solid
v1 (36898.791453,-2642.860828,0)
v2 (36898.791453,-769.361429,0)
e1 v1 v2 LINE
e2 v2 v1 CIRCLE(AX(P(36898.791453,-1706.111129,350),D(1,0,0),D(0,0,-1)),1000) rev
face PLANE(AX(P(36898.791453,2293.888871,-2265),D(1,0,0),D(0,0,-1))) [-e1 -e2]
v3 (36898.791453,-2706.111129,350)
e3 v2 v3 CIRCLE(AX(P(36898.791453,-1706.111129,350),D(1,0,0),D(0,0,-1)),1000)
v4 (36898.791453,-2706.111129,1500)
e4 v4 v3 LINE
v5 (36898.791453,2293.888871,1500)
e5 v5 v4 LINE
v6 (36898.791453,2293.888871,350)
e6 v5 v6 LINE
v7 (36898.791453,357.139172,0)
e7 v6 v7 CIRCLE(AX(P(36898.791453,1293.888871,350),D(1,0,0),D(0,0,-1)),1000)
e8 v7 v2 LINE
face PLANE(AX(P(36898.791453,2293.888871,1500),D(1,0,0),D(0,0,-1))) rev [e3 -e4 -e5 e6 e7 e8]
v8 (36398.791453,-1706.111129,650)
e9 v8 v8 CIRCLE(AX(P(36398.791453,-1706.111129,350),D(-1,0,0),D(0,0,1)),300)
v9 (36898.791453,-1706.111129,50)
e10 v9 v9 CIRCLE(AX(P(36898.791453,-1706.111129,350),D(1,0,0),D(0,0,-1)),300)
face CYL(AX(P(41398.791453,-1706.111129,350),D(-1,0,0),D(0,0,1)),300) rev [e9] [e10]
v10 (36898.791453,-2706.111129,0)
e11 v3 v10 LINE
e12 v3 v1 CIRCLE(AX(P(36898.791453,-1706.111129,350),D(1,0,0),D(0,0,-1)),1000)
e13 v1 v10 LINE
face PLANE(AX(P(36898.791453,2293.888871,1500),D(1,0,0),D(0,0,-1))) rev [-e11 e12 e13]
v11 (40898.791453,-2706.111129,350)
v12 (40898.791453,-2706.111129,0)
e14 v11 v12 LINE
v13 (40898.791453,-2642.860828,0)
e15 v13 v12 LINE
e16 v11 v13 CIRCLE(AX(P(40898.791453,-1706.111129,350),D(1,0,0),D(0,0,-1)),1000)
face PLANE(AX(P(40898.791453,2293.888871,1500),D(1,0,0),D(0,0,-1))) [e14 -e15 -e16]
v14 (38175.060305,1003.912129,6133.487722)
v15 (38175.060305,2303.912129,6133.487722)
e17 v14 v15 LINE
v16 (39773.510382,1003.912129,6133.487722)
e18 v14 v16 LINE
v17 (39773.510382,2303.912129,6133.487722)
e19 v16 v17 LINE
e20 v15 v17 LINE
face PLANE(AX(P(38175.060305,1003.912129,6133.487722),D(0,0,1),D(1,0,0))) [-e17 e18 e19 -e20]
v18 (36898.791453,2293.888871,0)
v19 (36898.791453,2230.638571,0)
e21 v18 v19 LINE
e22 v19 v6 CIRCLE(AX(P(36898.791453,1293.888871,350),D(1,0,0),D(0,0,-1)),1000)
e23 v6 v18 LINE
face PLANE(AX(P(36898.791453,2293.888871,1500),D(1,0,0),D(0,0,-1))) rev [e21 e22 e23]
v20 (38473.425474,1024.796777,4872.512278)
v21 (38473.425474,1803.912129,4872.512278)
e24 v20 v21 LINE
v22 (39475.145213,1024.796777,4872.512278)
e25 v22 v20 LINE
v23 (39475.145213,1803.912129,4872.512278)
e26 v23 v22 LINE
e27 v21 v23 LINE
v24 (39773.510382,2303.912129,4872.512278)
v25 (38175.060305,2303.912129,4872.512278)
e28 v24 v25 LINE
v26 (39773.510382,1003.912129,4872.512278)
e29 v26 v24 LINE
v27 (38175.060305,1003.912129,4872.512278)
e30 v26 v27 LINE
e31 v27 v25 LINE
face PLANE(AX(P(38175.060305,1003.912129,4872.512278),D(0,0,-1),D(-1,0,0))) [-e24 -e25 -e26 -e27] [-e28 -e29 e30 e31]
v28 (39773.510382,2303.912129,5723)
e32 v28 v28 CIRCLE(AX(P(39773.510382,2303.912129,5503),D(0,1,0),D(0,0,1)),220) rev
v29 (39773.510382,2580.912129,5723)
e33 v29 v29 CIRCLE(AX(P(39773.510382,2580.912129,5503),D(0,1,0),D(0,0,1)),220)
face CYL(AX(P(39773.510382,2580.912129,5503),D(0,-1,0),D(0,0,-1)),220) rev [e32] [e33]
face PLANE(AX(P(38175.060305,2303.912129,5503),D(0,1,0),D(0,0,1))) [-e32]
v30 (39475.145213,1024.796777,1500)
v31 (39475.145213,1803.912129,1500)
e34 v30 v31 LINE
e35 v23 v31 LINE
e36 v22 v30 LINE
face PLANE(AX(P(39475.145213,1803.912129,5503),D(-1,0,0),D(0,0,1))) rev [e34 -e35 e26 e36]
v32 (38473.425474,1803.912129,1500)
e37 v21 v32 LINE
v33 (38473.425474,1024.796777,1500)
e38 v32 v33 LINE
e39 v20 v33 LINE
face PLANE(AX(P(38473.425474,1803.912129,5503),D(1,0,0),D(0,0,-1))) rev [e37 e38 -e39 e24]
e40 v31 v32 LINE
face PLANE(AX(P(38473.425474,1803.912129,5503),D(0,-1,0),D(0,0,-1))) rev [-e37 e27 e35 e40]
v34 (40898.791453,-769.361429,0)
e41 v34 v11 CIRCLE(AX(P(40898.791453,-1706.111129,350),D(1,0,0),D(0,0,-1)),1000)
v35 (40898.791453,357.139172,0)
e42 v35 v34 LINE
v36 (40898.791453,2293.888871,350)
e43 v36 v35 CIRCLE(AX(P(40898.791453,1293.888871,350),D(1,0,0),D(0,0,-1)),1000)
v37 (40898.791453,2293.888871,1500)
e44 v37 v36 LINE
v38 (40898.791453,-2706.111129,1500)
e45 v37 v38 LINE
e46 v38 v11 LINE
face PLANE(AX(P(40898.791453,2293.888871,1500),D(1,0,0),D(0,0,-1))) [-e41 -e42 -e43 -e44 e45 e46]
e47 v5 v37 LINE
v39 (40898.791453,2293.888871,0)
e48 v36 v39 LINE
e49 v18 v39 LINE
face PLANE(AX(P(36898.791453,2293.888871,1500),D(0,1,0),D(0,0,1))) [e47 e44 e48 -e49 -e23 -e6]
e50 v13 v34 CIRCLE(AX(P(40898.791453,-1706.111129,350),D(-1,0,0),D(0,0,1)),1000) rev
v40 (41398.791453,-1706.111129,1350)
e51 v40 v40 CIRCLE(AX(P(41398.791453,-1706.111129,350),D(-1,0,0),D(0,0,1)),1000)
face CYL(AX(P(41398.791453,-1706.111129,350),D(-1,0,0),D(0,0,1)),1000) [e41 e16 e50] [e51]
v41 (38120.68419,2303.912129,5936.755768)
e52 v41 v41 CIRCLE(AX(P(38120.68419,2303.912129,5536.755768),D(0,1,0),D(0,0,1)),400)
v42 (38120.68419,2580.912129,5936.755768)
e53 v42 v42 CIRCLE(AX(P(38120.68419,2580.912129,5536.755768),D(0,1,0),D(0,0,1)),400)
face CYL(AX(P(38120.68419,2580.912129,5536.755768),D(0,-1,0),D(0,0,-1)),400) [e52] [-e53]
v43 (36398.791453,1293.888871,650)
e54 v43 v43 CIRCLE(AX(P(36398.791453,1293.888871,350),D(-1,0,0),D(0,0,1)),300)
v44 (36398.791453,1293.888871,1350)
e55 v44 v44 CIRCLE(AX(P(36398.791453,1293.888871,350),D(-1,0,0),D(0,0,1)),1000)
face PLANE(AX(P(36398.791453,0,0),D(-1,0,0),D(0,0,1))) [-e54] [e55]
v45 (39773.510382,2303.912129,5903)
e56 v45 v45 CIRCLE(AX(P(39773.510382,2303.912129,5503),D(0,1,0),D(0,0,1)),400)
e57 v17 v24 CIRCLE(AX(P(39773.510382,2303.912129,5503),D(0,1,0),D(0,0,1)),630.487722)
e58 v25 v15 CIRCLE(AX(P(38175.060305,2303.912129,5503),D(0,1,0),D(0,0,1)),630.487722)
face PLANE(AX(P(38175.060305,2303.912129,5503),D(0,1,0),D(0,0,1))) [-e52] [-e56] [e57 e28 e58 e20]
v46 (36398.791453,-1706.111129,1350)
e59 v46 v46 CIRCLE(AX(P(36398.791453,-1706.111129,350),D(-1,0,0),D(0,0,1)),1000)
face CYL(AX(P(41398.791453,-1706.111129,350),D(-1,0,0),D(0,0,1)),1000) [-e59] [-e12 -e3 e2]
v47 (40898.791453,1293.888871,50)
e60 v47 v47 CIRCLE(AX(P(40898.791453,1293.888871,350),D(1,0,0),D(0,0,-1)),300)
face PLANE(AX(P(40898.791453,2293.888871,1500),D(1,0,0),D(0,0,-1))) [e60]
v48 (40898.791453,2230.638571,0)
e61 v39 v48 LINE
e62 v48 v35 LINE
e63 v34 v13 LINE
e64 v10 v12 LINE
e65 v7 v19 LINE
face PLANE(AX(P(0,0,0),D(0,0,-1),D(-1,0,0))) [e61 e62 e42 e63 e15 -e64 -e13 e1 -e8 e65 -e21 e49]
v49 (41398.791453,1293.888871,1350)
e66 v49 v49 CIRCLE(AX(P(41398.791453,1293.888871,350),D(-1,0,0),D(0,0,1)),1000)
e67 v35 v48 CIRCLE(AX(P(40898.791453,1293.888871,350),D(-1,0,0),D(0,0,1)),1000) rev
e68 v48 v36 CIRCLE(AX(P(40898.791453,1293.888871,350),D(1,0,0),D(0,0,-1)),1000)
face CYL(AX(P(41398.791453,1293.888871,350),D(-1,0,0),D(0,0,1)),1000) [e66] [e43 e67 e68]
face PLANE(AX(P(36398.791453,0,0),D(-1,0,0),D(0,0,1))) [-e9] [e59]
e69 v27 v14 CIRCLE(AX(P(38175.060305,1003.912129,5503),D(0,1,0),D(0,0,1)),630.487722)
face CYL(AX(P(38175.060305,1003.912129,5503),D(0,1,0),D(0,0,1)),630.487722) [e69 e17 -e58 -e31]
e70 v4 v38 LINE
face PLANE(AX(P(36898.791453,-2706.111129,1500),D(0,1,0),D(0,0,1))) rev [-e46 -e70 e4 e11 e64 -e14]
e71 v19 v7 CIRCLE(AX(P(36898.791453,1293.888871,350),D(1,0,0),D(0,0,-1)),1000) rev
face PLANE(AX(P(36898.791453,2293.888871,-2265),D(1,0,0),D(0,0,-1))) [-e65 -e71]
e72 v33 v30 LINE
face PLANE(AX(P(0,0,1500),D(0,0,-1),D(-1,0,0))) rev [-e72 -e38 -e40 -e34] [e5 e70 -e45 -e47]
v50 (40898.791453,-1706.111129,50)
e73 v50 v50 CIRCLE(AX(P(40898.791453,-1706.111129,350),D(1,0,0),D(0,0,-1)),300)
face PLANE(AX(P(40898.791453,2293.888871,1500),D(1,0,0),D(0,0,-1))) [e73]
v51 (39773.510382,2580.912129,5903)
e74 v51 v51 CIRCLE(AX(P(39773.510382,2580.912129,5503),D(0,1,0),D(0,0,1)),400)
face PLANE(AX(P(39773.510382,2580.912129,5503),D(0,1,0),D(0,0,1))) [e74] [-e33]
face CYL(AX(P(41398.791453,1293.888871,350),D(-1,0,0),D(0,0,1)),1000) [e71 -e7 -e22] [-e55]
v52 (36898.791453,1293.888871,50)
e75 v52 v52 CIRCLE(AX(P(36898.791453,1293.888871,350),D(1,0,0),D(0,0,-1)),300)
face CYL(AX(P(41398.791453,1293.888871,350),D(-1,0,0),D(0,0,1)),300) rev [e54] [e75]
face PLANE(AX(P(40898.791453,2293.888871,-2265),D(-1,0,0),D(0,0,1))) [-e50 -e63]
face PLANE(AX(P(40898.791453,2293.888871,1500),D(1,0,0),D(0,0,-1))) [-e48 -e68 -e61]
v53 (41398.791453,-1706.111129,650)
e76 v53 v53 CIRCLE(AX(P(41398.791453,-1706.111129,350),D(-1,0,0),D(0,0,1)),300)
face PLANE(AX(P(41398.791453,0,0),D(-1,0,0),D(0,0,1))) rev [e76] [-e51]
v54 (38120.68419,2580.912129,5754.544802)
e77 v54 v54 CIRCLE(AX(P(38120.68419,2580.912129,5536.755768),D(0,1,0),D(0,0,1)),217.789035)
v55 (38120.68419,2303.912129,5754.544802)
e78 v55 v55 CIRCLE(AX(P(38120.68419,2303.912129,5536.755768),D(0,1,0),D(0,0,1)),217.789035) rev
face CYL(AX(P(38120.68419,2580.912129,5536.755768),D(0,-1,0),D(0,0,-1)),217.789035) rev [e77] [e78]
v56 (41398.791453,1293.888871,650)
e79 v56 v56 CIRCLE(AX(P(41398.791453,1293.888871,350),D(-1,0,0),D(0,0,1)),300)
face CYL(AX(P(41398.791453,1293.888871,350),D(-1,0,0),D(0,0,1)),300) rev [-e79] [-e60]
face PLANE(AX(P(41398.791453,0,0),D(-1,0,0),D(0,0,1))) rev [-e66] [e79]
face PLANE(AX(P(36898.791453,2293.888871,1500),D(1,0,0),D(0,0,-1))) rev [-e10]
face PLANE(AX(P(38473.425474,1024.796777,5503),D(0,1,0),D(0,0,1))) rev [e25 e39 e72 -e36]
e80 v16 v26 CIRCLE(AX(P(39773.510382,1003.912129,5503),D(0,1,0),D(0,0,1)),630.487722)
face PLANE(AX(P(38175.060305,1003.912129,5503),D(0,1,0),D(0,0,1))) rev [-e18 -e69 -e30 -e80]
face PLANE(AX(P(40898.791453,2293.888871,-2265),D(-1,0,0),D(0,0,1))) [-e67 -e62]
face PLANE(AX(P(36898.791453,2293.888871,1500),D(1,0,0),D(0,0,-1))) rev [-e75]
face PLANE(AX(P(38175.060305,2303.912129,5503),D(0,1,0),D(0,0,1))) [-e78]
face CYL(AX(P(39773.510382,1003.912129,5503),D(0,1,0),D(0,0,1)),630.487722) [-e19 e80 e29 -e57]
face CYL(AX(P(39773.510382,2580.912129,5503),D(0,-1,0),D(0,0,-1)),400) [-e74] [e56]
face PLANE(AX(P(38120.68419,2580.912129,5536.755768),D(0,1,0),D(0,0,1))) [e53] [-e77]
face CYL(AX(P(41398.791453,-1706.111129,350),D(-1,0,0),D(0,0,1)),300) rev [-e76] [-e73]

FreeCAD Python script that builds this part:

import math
import FreeCAD as App
import Part
import Sketcher

V = App.Vector


def add_polygon(sketch, points):
    """Adds a closed chain of lines whose ends are joined by coincident constraints."""
    first, n = sketch.GeometryCount, len(points)
    for a, b in zip(points, points[1:] + points[:1]):
        sketch.addGeometry(Part.LineSegment(App.Vector(*a, 0), App.Vector(*b, 0)), False)
    for i in range(n):
        sketch.addConstraint(Sketcher.Constraint("Coincident", first + i, 2, first + (i + 1) % n, 1))

doc = App.newDocument("Part")
params = doc.addObject("Spreadsheet::Sheet", "Params")
for row, (alias, value) in enumerate([
    ("sketch1_width", "4000 mm"),
    ("sketch1_height", "5000 mm"),
    ("pad1_length", "1500 mm"),
    ("sketch2_diameter", "2000 mm"),
    ("sketch2_diameter2", "600 mm"),
    ("pad2_length", "500 mm"),
    ("pad2_length2", "4500 mm"),
    ("sketch3_width", "4000 mm"),
    ("sketch3_height", "5000 mm"),
    ("pocket1_length", "2265 mm"),
    ("pad3_length", "4003 mm"),
    ("pad4_length", "500 mm"),
    ("pad4_length2", "800 mm"),
    ("sketch6_diameter", "800 mm"),
    ("sketch6_diameter2", "440 mm"),
    ("pad5_length", "277 mm"),
], start=1):
    params.set(f"A{row}", alias)
    params.set(f"B{row}", "=" + value)
    params.setAlias(f"B{row}", alias)

body = doc.addObject("PartDesign::Body", "Body")

sketch1 = body.newObject("Sketcher::SketchObject", "Sketch")
sketch1.AttachmentSupport = (doc.getObject("XY_Plane"), [""])
sketch1.MapMode = "FlatFace"
add_polygon(sketch1, [(36898.791453, 2293.888871), (36898.791453, -2706.111129), (40898.791453, -2706.111129), (40898.791453, 2293.888871)])
sketch1.addConstraint([
    Sketcher.Constraint("Vertical", 0),
    Sketcher.Constraint("Horizontal", 1),
    Sketcher.Constraint("Vertical", 2),
    Sketcher.Constraint("Horizontal", 3),
    Sketcher.Constraint("DistanceX", 1, 1, 1, 2, 4000.0),
    Sketcher.Constraint("DistanceY", 0, 2, 0, 1, 5000.0),
    Sketcher.Constraint("DistanceY", 0, 2, -1, 1, 2706.111129),
    Sketcher.Constraint("DistanceX", -1, 1, 0, 2, 36898.791453),
])
sketch1.setExpression("Constraints[8]", "Params.sketch1_width")
sketch1.setExpression("Constraints[9]", "Params.sketch1_height")
pad1 = body.newObject("PartDesign::Pad", "Pad")
pad1.Profile = sketch1
pad1.setExpression("Length", "Params.pad1_length")

sketch2 = body.newObject("Sketcher::SketchObject", "Sketch001")
sketch2.AttachmentSupport = (doc.getObject("YZ_Plane"), [""])
sketch2.MapMode = "FlatFace"
sketch2.AttachmentOffset = App.Placement(V(0, 0, 36898.791453), App.Rotation())
sketch2.addGeometry([
    Part.Circle(V(1293.888871, 350, 0), V(0, 0, 1), 1000),
    Part.Circle(V(1293.888871, 350, 0), V(0, 0, 1), 300),
    Part.Circle(V(-1706.111129, 350, 0), V(0, 0, 1), 1000),
    Part.Circle(V(-1706.111129, 350, 0), V(0, 0, 1), 300),
], False)
sketch2.addConstraint([
    Sketcher.Constraint("Coincident", 1, 3, 0, 3),
    Sketcher.Constraint("Coincident", 3, 3, 2, 3),
    Sketcher.Constraint("Equal", 0, 2),
    Sketcher.Constraint("Equal", 1, 3),
    Sketcher.Constraint("Horizontal", 1, 3, 2, 3),
    Sketcher.Constraint("Diameter", 0, 2000.0),
    Sketcher.Constraint("Diameter", 1, 600.0),
    Sketcher.Constraint("DistanceY", -1, 1, 0, 3, 350.0),
    Sketcher.Constraint("DistanceX", 2, 3, 0, 3, 3000.0),
    Sketcher.Constraint("DistanceX", -1, 1, 0, 3, 1293.888871),
])
sketch2.setExpression("Constraints[5]", "Params.sketch2_diameter")
sketch2.setExpression("Constraints[6]", "Params.sketch2_diameter2")
pad2 = body.newObject("PartDesign::Pad", "Pad001")
pad2.Profile = sketch2
pad2.Type = "TwoLengths"
pad2.setExpression("Length", "Params.pad2_length")
pad2.setExpression("Length2", "Params.pad2_length2")
pad2.Reversed = True

sketch3 = body.newObject("Sketcher::SketchObject", "Sketch002")
sketch3.AttachmentSupport = (doc.getObject("XY_Plane"), [""])
sketch3.MapMode = "FlatFace"
add_polygon(sketch3, [(40898.791453, 2293.888871), (40898.791453, -2706.111129), (36898.791453, -2706.111129), (36898.791453, 2293.888871)])
sketch3.addConstraint([
    Sketcher.Constraint("Vertical", 0),
    Sketcher.Constraint("Horizontal", 1),
    Sketcher.Constraint("Vertical", 2),
    Sketcher.Constraint("Horizontal", 3),
    Sketcher.Constraint("DistanceX", 1, 2, 1, 1, 4000.0),
    Sketcher.Constraint("DistanceY", 0, 2, 0, 1, 5000.0),
    Sketcher.Constraint("DistanceY", 0, 2, -1, 1, 2706.111129),
    Sketcher.Constraint("DistanceX", -1, 1, 0, 2, 40898.791453),
])
sketch3.setExpression("Constraints[8]", "Params.sketch3_width")
sketch3.setExpression("Constraints[9]", "Params.sketch3_height")
pocket1 = body.newObject("PartDesign::Pocket", "Pocket")
pocket1.Profile = sketch3
pocket1.setExpression("Length", "Params.pocket1_length")

sketch4 = body.newObject("Sketcher::SketchObject", "Sketch003")
sketch4.AttachmentSupport = (doc.getObject("XY_Plane"), [""])
sketch4.MapMode = "FlatFace"
sketch4.AttachmentOffset = App.Placement(V(0, 0, 1500), App.Rotation())
add_polygon(sketch4, [(38473.425474, 1803.912129), (38473.425474, 1024.796777), (39475.145213, 1024.796777), (39475.145213, 1803.912129)])
sketch4.addConstraint([
    Sketcher.Constraint("Vertical", 0),
    Sketcher.Constraint("Horizontal", 1),
    Sketcher.Constraint("Vertical", 2),
    Sketcher.Constraint("Horizontal", 3),
    Sketcher.Constraint("DistanceX", 1, 1, 1, 2, 1001.719739),
    Sketcher.Constraint("DistanceY", 0, 2, 0, 1, 779.115353),
    Sketcher.Constraint("DistanceY", -1, 1, 2, 2, 1803.912129),
    Sketcher.Constraint("DistanceX", -1, 1, 0, 2, 38473.425474),
])
pad3 = body.newObject("PartDesign::Pad", "Pad002")
pad3.Profile = sketch4
pad3.setExpression("Length", "Params.pad3_length")

sketch5 = body.newObject("Sketcher::SketchObject", "Sketch004")
sketch5.AttachmentSupport = (doc.getObject("XZ_Plane"), [""])
sketch5.MapMode = "FlatFace"
sketch5.AttachmentOffset = App.Placement(V(0, 0, -1803.912129), App.Rotation())
sketch5.addGeometry([
    Part.LineSegment(V(39773.510382, 4872.512278, 0), V(38175.060305, 4872.512278, 0)),
    Part.ArcOfCircle(Part.Circle(V(38175.060305, 5503, 0), V(0, 0, 1), 630.487722), math.radians(90), math.radians(270)),
    Part.LineSegment(V(38175.060305, 6133.487722, 0), V(39773.510382, 6133.487722, 0)),
    Part.ArcOfCircle(Part.Circle(V(39773.510382, 5503, 0), V(0, 0, 1), 630.487722), math.radians(-90), math.radians(90)),
], False)
sketch5.addConstraint([
    Sketcher.Constraint("Tangent", 0, 2, 1, 2),
    Sketcher.Constraint("Tangent", 1, 1, 2, 1),
    Sketcher.Constraint("Tangent", 2, 2, 3, 2),
    Sketcher.Constraint("Tangent", 3, 1, 0, 1),
    Sketcher.Constraint("Horizontal", 0),
    Sketcher.Constraint("Horizontal", 2),
    Sketcher.Constraint("DistanceY", -1, 1, 1, 3, 5503.0),
    Sketcher.Constraint("Radius", 1, 630.487722),
    Sketcher.Constraint("DistanceX", 0, 2, 0, 1, 1598.450076),
    Sketcher.Constraint("DistanceX", -1, 1, 3, 3, 39773.510382),
])
pad4 = body.newObject("PartDesign::Pad", "Pad003")
pad4.Profile = sketch5
pad4.Type = "TwoLengths"
pad4.setExpression("Length", "Params.pad4_length")
pad4.setExpression("Length2", "Params.pad4_length2")
pad4.Reversed = True

sketch6 = body.newObject("Sketcher::SketchObject", "Sketch005")
sketch6.AttachmentSupport = (doc.getObject("XZ_Plane"), [""])
sketch6.MapMode = "FlatFace"
sketch6.AttachmentOffset = App.Placement(V(0, 0, -2303.912129), App.Rotation())
sketch6.addGeometry([
    Part.Circle(V(38120.68419, 5536.755768, 0), V(0, 0, 1), 400),
    Part.Circle(V(38120.68419, 5536.755768, 0), V(0, 0, 1), 217.789035),
    Part.Circle(V(39773.510382, 5503, 0), V(0, 0, 1), 400),
    Part.Circle(V(39773.510382, 5503, 0), V(0, 0, 1), 220),
], False)
sketch6.addConstraint([
    Sketcher.Constraint("Coincident", 1, 3, 0, 3),
    Sketcher.Constraint("Coincident", 3, 3, 2, 3),
    Sketcher.Constraint("Equal", 0, 2),
    Sketcher.Constraint("Diameter", 0, 800.0),
    Sketcher.Constraint("Diameter", 3, 440.0),
    Sketcher.Constraint("DistanceY", -1, 1, 2, 3, 5503.0),
    Sketcher.Constraint("Diameter", 1, 435.578069),
    Sketcher.Constraint("DistanceX", -1, 1, 0, 3, 38120.68419),
    Sketcher.Constraint("DistanceX", -1, 1, 2, 3, 39773.510382),
    Sketcher.Constraint("DistanceY", -1, 1, 0, 3, 5536.755768),
])
sketch6.setExpression("Constraints[3]", "Params.sketch6_diameter")
sketch6.setExpression("Constraints[4]", "Params.sketch6_diameter2")
pad5 = body.newObject("PartDesign::Pad", "Pad004")
pad5.Profile = sketch6
pad5.setExpression("Length", "Params.pad5_length")
pad5.Reversed = True

doc.recompute()
